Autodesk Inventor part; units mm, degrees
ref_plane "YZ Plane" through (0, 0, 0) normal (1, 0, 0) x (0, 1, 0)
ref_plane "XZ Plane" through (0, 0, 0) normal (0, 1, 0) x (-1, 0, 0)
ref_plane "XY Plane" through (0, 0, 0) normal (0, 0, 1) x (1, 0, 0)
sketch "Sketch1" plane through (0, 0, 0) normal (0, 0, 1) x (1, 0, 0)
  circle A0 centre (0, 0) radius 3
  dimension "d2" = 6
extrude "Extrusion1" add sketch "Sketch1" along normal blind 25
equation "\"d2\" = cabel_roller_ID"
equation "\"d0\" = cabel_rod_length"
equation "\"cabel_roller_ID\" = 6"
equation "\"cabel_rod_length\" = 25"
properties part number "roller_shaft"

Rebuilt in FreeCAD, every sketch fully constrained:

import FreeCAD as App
import Part
import Sketcher
from FreeCAD import Vector

doc = App.newDocument("Part")
body = doc.addObject("PartDesign::Body", "Body")

sketch1 = body.newObject("Sketcher::SketchObject", "Sketch")
sketch1.AttachmentSupport = (doc.getObject("XY_Plane"), [""])
sketch1.MapMode = "FlatFace"
sketch1.addGeometry(Part.Circle(Vector(0, 0, 0), Vector(0, 0, 1), 3), False)
sketch1.addConstraint(Sketcher.Constraint("Coincident", 0, 3, -1, 1))
sketch1.addConstraint(Sketcher.Constraint("Diameter", 0, 6.0))
pad1 = body.newObject("PartDesign::Pad", "Pad")
pad1.Profile = sketch1
pad1.Length = 25

doc.recompute()
